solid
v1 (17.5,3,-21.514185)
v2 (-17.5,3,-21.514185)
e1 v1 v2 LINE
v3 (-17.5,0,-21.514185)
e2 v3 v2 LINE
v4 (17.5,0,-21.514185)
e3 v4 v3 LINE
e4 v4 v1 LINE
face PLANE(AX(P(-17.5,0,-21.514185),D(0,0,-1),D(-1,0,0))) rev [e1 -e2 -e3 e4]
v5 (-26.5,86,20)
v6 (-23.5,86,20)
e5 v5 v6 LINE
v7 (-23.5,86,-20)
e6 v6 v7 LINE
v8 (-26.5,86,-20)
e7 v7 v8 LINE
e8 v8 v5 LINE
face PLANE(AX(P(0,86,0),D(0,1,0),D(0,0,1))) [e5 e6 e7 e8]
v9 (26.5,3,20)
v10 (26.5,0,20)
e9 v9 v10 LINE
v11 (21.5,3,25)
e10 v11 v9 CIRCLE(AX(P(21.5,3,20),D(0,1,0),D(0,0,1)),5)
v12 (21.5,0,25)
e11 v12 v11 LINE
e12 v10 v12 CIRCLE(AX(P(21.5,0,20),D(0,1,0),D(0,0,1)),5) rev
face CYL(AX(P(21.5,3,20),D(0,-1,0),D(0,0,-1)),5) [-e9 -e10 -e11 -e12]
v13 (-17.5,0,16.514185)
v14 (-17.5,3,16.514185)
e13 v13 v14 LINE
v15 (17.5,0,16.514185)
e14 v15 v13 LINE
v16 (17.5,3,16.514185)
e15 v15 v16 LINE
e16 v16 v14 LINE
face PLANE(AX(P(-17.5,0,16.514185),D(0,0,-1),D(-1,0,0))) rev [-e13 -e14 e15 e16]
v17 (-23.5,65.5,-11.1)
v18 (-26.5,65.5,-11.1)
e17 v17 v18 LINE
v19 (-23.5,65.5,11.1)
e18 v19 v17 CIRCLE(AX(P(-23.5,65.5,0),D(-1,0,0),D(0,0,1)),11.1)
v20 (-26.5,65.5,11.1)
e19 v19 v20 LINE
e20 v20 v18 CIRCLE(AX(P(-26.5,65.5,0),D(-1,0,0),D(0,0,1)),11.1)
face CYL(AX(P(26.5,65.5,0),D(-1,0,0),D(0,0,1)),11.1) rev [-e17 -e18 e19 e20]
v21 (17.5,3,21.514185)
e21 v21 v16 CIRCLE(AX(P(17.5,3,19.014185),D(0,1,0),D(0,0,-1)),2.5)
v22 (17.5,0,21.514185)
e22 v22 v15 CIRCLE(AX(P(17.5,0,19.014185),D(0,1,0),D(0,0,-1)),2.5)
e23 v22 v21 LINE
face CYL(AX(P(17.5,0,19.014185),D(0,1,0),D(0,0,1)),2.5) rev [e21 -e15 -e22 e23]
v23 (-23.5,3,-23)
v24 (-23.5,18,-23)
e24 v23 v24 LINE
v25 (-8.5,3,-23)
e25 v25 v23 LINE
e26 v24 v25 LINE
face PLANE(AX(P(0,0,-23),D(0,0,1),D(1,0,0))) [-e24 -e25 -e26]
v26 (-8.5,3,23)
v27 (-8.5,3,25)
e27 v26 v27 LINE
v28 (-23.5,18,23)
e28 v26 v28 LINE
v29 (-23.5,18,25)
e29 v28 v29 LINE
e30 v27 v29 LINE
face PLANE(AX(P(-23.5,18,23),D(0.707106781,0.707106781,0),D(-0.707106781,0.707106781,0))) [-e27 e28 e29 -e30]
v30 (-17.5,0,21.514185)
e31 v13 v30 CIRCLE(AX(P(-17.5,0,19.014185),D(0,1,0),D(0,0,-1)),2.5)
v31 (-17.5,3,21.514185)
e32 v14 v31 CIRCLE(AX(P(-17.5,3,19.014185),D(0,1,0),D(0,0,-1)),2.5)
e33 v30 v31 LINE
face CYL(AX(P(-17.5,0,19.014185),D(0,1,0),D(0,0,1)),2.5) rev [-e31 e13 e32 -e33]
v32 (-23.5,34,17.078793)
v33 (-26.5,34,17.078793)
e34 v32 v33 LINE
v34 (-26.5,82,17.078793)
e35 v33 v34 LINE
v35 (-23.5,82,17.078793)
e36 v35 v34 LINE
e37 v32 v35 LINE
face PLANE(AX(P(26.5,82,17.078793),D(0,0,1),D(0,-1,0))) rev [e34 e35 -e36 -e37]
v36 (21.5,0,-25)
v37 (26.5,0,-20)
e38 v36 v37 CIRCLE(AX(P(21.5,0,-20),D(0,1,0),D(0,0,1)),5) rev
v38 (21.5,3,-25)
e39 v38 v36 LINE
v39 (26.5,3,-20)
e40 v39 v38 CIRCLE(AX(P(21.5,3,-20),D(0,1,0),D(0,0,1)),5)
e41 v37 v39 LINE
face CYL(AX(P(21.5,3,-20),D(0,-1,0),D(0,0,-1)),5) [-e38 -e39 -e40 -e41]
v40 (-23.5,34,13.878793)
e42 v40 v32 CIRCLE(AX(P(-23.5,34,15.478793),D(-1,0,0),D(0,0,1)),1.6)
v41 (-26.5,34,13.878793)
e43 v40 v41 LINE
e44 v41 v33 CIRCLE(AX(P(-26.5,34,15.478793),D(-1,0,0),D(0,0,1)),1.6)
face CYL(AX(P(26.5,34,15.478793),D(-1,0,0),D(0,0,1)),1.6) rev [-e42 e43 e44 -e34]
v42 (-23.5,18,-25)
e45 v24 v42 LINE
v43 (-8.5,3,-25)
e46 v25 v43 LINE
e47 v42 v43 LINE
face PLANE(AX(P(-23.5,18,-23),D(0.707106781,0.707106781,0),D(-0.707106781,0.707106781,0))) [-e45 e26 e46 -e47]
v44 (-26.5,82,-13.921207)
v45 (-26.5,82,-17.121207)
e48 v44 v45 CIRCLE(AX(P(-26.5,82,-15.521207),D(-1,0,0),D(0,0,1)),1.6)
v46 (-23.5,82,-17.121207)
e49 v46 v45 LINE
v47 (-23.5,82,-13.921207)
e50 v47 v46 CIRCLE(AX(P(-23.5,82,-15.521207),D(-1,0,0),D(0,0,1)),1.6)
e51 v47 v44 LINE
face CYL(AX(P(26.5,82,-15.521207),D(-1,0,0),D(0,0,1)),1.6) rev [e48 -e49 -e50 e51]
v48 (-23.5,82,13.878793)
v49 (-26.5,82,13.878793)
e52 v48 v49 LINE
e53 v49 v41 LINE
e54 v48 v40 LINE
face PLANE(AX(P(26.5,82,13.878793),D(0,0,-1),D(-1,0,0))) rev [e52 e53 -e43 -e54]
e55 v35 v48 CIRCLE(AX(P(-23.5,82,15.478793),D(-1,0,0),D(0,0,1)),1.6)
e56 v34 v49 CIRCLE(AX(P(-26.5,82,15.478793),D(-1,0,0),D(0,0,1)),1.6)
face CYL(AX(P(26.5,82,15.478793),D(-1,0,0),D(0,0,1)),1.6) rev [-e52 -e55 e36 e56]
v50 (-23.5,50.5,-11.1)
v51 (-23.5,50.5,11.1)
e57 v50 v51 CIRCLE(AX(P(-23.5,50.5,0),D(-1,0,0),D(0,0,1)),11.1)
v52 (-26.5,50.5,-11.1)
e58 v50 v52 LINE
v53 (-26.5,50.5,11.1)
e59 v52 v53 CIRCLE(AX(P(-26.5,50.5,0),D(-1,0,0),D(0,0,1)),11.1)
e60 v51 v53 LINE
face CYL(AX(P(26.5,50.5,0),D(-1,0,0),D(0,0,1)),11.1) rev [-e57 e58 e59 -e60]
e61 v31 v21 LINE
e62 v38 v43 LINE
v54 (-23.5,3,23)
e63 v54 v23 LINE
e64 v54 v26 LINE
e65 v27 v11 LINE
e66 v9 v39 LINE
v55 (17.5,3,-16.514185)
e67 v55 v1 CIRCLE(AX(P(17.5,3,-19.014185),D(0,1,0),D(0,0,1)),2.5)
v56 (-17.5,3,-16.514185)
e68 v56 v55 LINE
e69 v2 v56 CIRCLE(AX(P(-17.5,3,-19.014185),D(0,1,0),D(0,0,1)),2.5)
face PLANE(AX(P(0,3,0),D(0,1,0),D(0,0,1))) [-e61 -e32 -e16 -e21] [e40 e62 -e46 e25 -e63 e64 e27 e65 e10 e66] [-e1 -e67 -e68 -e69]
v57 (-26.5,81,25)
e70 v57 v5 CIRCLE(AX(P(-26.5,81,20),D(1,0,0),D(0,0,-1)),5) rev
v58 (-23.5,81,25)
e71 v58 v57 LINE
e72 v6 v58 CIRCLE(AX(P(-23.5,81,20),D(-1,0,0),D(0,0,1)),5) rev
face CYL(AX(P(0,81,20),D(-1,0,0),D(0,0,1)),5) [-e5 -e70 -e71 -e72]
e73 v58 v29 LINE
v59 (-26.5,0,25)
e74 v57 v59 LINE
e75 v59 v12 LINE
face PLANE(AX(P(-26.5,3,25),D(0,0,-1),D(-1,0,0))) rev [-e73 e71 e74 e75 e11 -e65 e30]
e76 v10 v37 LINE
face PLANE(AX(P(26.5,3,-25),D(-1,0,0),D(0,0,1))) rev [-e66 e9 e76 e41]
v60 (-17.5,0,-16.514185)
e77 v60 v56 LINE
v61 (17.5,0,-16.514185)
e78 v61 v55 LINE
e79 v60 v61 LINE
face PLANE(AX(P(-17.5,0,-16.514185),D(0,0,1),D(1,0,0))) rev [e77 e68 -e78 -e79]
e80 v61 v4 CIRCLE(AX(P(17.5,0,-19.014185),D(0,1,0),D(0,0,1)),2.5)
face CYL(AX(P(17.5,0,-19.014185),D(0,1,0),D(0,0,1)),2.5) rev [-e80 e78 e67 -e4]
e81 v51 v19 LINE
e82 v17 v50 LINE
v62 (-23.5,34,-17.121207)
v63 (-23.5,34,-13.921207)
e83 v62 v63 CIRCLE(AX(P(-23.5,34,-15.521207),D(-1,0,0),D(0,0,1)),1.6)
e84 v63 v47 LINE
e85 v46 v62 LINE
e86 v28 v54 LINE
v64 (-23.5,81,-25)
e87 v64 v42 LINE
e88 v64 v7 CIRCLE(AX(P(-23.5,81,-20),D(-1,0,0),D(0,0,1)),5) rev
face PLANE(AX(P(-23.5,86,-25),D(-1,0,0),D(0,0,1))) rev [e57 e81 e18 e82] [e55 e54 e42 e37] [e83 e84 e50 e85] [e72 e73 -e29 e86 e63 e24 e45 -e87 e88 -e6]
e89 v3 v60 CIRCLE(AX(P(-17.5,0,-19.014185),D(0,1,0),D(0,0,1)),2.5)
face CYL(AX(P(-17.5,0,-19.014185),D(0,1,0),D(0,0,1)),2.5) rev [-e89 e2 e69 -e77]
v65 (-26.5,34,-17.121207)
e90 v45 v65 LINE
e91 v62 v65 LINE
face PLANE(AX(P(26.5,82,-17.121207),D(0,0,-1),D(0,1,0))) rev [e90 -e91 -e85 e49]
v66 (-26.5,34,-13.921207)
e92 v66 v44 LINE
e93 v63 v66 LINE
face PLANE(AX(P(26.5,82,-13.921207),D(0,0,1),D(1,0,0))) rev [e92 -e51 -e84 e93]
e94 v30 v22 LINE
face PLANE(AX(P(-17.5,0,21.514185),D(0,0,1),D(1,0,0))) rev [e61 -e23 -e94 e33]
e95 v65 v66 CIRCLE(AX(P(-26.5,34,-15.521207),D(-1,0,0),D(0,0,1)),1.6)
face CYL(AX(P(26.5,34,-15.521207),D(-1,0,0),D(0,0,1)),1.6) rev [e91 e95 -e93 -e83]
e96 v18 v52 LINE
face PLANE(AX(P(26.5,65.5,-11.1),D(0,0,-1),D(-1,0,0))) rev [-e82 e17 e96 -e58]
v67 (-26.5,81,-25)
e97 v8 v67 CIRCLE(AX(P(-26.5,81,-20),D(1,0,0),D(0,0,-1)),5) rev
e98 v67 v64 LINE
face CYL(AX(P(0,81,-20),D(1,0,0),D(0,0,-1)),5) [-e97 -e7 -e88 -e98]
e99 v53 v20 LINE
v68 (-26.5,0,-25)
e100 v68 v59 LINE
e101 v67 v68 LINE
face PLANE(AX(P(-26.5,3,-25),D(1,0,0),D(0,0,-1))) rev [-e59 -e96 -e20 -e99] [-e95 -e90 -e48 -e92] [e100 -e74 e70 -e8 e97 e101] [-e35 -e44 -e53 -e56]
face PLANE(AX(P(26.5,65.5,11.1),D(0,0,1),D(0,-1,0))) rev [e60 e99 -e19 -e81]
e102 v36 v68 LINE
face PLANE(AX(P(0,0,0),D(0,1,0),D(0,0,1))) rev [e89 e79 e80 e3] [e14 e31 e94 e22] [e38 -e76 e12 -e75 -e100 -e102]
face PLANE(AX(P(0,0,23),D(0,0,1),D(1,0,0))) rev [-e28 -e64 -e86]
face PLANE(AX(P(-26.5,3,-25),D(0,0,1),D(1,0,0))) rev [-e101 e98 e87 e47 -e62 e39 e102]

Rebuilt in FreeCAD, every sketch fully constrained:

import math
import FreeCAD as App
import Part
import Sketcher

V = App.Vector


def edges_at(feature, points):
    """Names of the edges that pass closest to the given points."""
    edges = feature.Shape.Edges
    near = lambda p: min(range(len(edges)), key=lambda i: edges[i].distToShape(Part.Vertex(*p))[0])
    return sorted({f"Edge{near(p) + 1}" for p in points})

doc = App.newDocument("Part")
params = doc.addObject("Spreadsheet::Sheet", "Params")
for row, (alias, value) in enumerate([
    ("sketch1_width", "53 mm"),
    ("sketch1_height", "50 mm"),
    ("pad1_length", "3 mm"),
    ("sketch2_radius", "2.5 mm"),
    ("sketch2_width", "35 mm"),
    ("sketch3_width", "3 mm"),
    ("sketch3_height", "50 mm"),
    ("pad2_length", "83 mm"),
    ("sketch4_radius", "1.6 mm"),
    ("sketch4_radius2", "11.1 mm"),
    ("sketch4_width", "48 mm"),
    ("sketch4_width2", "15 mm"),
    ("sketch5_width", "15 mm"),
    ("pad3_length", "2 mm"),
    ("sketch6_width", "15 mm"),
    ("pad4_length", "2 mm"),
    ("fillet_radius", "5 mm"),
], start=1):
    params.set(f"A{row}", alias)
    params.set(f"B{row}", "=" + value)
    params.setAlias(f"B{row}", alias)

body = doc.addObject("PartDesign::Body", "Body")

# Sketch on XZ plane
sketch1 = body.newObject("Sketcher::SketchObject", "Sketch")
sketch1.AttachmentSupport = (doc.getObject("XZ_Plane"), [""])
sketch1.MapMode = "FlatFace"
sketch1.addGeometry([
    Part.LineSegment(V(-26.5, -25, 0), V(-26.5, 25, 0)),
    Part.LineSegment(V(-26.5, 25, 0), V(26.5, 25, 0)),
    Part.LineSegment(V(26.5, 25, 0), V(26.5, -25, 0)),
    Part.LineSegment(V(26.5, -25, 0), V(-26.5, -25, 0)),
], False)
sketch1.addConstraint([
    Sketcher.Constraint("Coincident", 0, 2, 1, 1),
    Sketcher.Constraint("Coincident", 1, 2, 2, 1),
    Sketcher.Constraint("Coincident", 2, 2, 3, 1),
    Sketcher.Constraint("Coincident", 3, 2, 0, 1),
    Sketcher.Constraint("Vertical", 0),
    Sketcher.Constraint("Horizontal", 1),
    Sketcher.Constraint("Vertical", 2),
    Sketcher.Constraint("Horizontal", 3),
    Sketcher.Constraint("Symmetric", 0, 2, 2, 2, -1, 1),
    Sketcher.Constraint("DistanceX", 1, 1, 1, 2, 53.0),
    Sketcher.Constraint("DistanceY", 0, 1, 0, 2, 50.0),
])
sketch1.setExpression("Constraints[9]", "Params.sketch1_width")
sketch1.setExpression("Constraints[10]", "Params.sketch1_height")
pad1 = body.newObject("PartDesign::Pad", "Pad")
pad1.Profile = sketch1
pad1.setExpression("Length", "Params.pad1_length")
pad1.Reversed = True

# Sketch on XZ plane
sketch2 = body.newObject("Sketcher::SketchObject", "Sketch001")
sketch2.AttachmentSupport = (doc.getObject("XZ_Plane"), [""])
sketch2.MapMode = "FlatFace"
sketch2.AttachmentOffset = App.Placement(V(0, 0, -3), App.Rotation())
sketch2.addGeometry([
    Part.LineSegment(V(17.5, -21.514185, 0), V(-17.5, -21.514185, 0)),  # 0
    Part.ArcOfCircle(Part.Circle(V(-17.5, -19.014185, 0), V(0, 0, 1), 2.5), math.radians(90), math.radians(270)),  # 1
    Part.LineSegment(V(-17.5, -16.514185, 0), V(17.5, -16.514185, 0)),  # 2
    Part.ArcOfCircle(Part.Circle(V(17.5, -19.014185, 0), V(0, 0, 1), 2.5), math.radians(-90), math.radians(90)),  # 3
    Part.LineSegment(V(-17.5, 21.514185, 0), V(17.5, 21.514185, 0)),  # 4
    Part.ArcOfCircle(Part.Circle(V(17.5, 19.014185, 0), V(0, 0, 1), 2.5), math.radians(-90), math.radians(90)),  # 5
    Part.LineSegment(V(17.5, 16.514185, 0), V(-17.5, 16.514185, 0)),  # 6
    Part.ArcOfCircle(Part.Circle(V(-17.5, 19.014185, 0), V(0, 0, 1), 2.5), math.radians(90), math.radians(270)),  # 7
], False)
sketch2.addConstraint([
    Sketcher.Constraint("Tangent", 0, 2, 1, 2),
    Sketcher.Constraint("Tangent", 1, 1, 2, 1),
    Sketcher.Constraint("Tangent", 2, 2, 3, 2),
    Sketcher.Constraint("Tangent", 3, 1, 0, 1),
    Sketcher.Constraint("Tangent", 4, 2, 5, 2),
    Sketcher.Constraint("Tangent", 5, 1, 6, 1),
    Sketcher.Constraint("Tangent", 6, 2, 7, 2),
    Sketcher.Constraint("Tangent", 7, 1, 4, 1),
    Sketcher.Constraint("Horizontal", 0),
    Sketcher.Constraint("Horizontal", 2),
    Sketcher.Constraint("Horizontal", 4),
    Sketcher.Constraint("Horizontal", 6),
    Sketcher.Constraint("Equal", 3, 5),
    Sketcher.Constraint("Symmetric", 1, 3, 5, 3, -1, 1),
    Sketcher.Constraint("Vertical", 3, 3, 5, 3),
    Sketcher.Constraint("Vertical", 1, 3, 7, 3),
    Sketcher.Constraint("Radius", 1, 2.5),
    Sketcher.Constraint("DistanceX", 0, 2, 0, 1, 35.0),
    Sketcher.Constraint("DistanceY", 3, 3, 5, 3, 38.02837),
])
sketch2.setExpression("Constraints[16]", "Params.sketch2_radius")
sketch2.setExpression("Constraints[17]", "Params.sketch2_width")
pocket1 = body.newObject("PartDesign::Pocket", "Pocket")
pocket1.Profile = sketch2
pocket1.Type = "ThroughAll"
pocket1.Reversed = True

# Sketch on XZ plane
sketch3 = body.newObject("Sketcher::SketchObject", "Sketch002")
sketch3.AttachmentSupport = (doc.getObject("XZ_Plane"), [""])
sketch3.MapMode = "FlatFace"
sketch3.AttachmentOffset = App.Placement(V(0, 0, -3), App.Rotation())
sketch3.addGeometry([
    Part.LineSegment(V(-26.5, -25, 0), V(-26.5, 25, 0)),
    Part.LineSegment(V(-26.5, 25, 0), V(-23.5, 25, 0)),
    Part.LineSegment(V(-23.5, 25, 0), V(-23.5, -25, 0)),
    Part.LineSegment(V(-23.5, -25, 0), V(-26.5, -25, 0)),
], False)
sketch3.addConstraint([
    Sketcher.Constraint("Coincident", 0, 2, 1, 1),
    Sketcher.Constraint("Coincident", 1, 2, 2, 1),
    Sketcher.Constraint("Coincident", 2, 2, 3, 1),
    Sketcher.Constraint("Coincident", 3, 2, 0, 1),
    Sketcher.Constraint("Vertical", 0),
    Sketcher.Constraint("Horizontal", 1),
    Sketcher.Constraint("Vertical", 2),
    Sketcher.Constraint("Horizontal", 3),
    Sketcher.Constraint("DistanceX", 1, 1, 1, 2, 3.0),
    Sketcher.Constraint("DistanceY", 0, 1, 0, 2, 50.0),
    Sketcher.Constraint("DistanceY", -1, 1, 0, 2, 25.0),
    Sketcher.Constraint("DistanceX", 0, 2, -1, 1, 26.5),
])
sketch3.setExpression("Constraints[8]", "Params.sketch3_width")
sketch3.setExpression("Constraints[9]", "Params.sketch3_height")
pad2 = body.newObject("PartDesign::Pad", "Pad001")
pad2.Profile = sketch3
pad2.setExpression("Length", "Params.pad2_length")
pad2.Reversed = True

# Sketch on YZ plane
sketch4 = body.newObject("Sketcher::SketchObject", "Sketch003")
sketch4.AttachmentSupport = (doc.getObject("YZ_Plane"), [""])
sketch4.MapMode = "FlatFace"
sketch4.AttachmentOffset = App.Placement(V(0, 0, -26.5), App.Rotation())
sketch4.addGeometry([
    Part.LineSegment(V(34, -13.921207, 0), V(82, -13.921207, 0)),  # 0
    Part.ArcOfCircle(Part.Circle(V(82, -15.521207, 0), V(0, 0, 1), 1.6), math.radians(-90), math.radians(90)),  # 1
    Part.LineSegment(V(82, -17.121207, 0), V(34, -17.121207, 0)),  # 2
    Part.ArcOfCircle(Part.Circle(V(34, -15.521207, 0), V(0, 0, 1), 1.6), math.radians(90), math.radians(270)),  # 3
    Part.LineSegment(V(50.5, 11.1, 0), V(65.5, 11.1, 0)),  # 4
    Part.ArcOfCircle(Part.Circle(V(65.5, 0, 0), V(0, 0, 1), 11.1), math.radians(-90), math.radians(90)),  # 5
    Part.LineSegment(V(65.5, -11.1, 0), V(50.5, -11.1, 0)),  # 6
    Part.ArcOfCircle(Part.Circle(V(50.5, 0, 0), V(0, 0, 1), 11.1), math.radians(90), math.radians(270)),  # 7
    Part.LineSegment(V(34, 17.078793, 0), V(82, 17.078793, 0)),  # 8
    Part.ArcOfCircle(Part.Circle(V(82, 15.478793, 0), V(0, 0, 1), 1.6), math.radians(-90), math.radians(90)),  # 9
    Part.LineSegment(V(82, 13.878793, 0), V(34, 13.878793, 0)),  # 10
    Part.ArcOfCircle(Part.Circle(V(34, 15.478793, 0), V(0, 0, 1), 1.6), math.radians(90), math.radians(270)),  # 11
], False)
sketch4.addConstraint([
    Sketcher.Constraint("Tangent", 0, 2, 1, 2),
    Sketcher.Constraint("Tangent", 1, 1, 2, 1),
    Sketcher.Constraint("Tangent", 2, 2, 3, 2),
    Sketcher.Constraint("Tangent", 3, 1, 0, 1),
    Sketcher.Constraint("Tangent", 4, 2, 5, 2),
    Sketcher.Constraint("Tangent", 5, 1, 6, 1),
    Sketcher.Constraint("Tangent", 6, 2, 7, 2),
    Sketcher.Constraint("Tangent", 7, 1, 4, 1),
    Sketcher.Constraint("Tangent", 8, 2, 9, 2),
    Sketcher.Constraint("Tangent", 9, 1, 10, 1),
    Sketcher.Constraint("Tangent", 10, 2, 11, 2),
    Sketcher.Constraint("Tangent", 11, 1, 8, 1),
    Sketcher.Constraint("Horizontal", 0),
    Sketcher.Constraint("Horizontal", 2),
    Sketcher.Constraint("Horizontal", 4),
    Sketcher.Constraint("Horizontal", 6),
    Sketcher.Constraint("Horizontal", 8),
    Sketcher.Constraint("Horizontal", 10),
    Sketcher.Constraint("Equal", 3, 9),
    Sketcher.Constraint("PointOnObject", 5, 3, -1),
    Sketcher.Constraint("Vertical", 1, 3, 9, 3),
    Sketcher.Constraint("Vertical", 3, 3, 11, 3),
    Sketcher.Constraint("Radius", 1, 1.6),
    Sketcher.Constraint("Radius", 5, 11.1),
    Sketcher.Constraint("DistanceX", 0, 1, 0, 2, 48.0),
    Sketcher.Constraint("DistanceX", 4, 1, 4, 2, 15.0),
    Sketcher.Constraint("DistanceX", -1, 1, 1, 3, 82.0),
    Sketcher.Constraint("DistanceY", 1, 3, 9, 3, 31.0),
    Sketcher.Constraint("DistanceX", -1, 1, 5, 3, 65.5),
    Sketcher.Constraint("DistanceY", 1, 3, -1, 1, 15.521207),
])
sketch4.setExpression("Constraints[22]", "Params.sketch4_radius")
sketch4.setExpression("Constraints[23]", "Params.sketch4_radius2")
sketch4.setExpression("Constraints[24]", "Params.sketch4_width")
sketch4.setExpression("Constraints[25]", "Params.sketch4_width2")
pocket2 = body.newObject("PartDesign::Pocket", "Pocket001")
pocket2.Profile = sketch4
pocket2.Type = "ThroughAll"
pocket2.Reversed = True

# Sketch on XY plane
sketch5 = body.newObject("Sketcher::SketchObject", "Sketch004")
sketch5.AttachmentSupport = (doc.getObject("XY_Plane"), [""])
sketch5.MapMode = "FlatFace"
sketch5.AttachmentOffset = App.Placement(V(0, 0, 25), App.Rotation())
sketch5.addGeometry([
    Part.LineSegment(V(-8.5, 3, 0), V(-23.5, 18, 0)),
    Part.LineSegment(V(-23.5, 18, 0), V(-23.5, 3, 0)),
    Part.LineSegment(V(-23.5, 3, 0), V(-8.5, 3, 0)),
], False)
sketch5.addConstraint([
    Sketcher.Constraint("Coincident", 0, 2, 1, 1),
    Sketcher.Constraint("Coincident", 1, 2, 2, 1),
    Sketcher.Constraint("Coincident", 2, 2, 0, 1),
    Sketcher.Constraint("Vertical", 1),
    Sketcher.Constraint("Horizontal", 2),
    Sketcher.Constraint("Equal", 2, 1),
    Sketcher.Constraint("DistanceX", 2, 1, 2, 2, 15.0),
    Sketcher.Constraint("DistanceY", -1, 1, 0, 2, 18.0),
    Sketcher.Constraint("DistanceX", 0, 2, -1, 1, 23.5),
])
sketch5.setExpression("Constraints[6]", "Params.sketch5_width")
pad3 = body.newObject("PartDesign::Pad", "Pad002")
pad3.Profile = sketch5
pad3.setExpression("Length", "Params.pad3_length")
pad3.Reversed = True

# Sketch on XY plane
sketch6 = body.newObject("Sketcher::SketchObject", "Sketch005")
sketch6.AttachmentSupport = (doc.getObject("XY_Plane"), [""])
sketch6.MapMode = "FlatFace"
sketch6.AttachmentOffset = App.Placement(V(0, 0, -25), App.Rotation())
sketch6.addGeometry([
    Part.LineSegment(V(-23.5, 18, 0), V(-8.5, 3, 0)),
    Part.LineSegment(V(-8.5, 3, 0), V(-23.5, 3, 0)),
    Part.LineSegment(V(-23.5, 3, 0), V(-23.5, 18, 0)),
], False)
sketch6.addConstraint([
    Sketcher.Constraint("Coincident", 0, 2, 1, 1),
    Sketcher.Constraint("Coincident", 1, 2, 2, 1),
    Sketcher.Constraint("Coincident", 2, 2, 0, 1),
    Sketcher.Constraint("Horizontal", 1),
    Sketcher.Constraint("Vertical", 2),
    Sketcher.Constraint("Equal", 1, 2),
    Sketcher.Constraint("DistanceX", 1, 2, 1, 1, 15.0),
    Sketcher.Constraint("DistanceY", -1, 1, 0, 2, 3.0),
    Sketcher.Constraint("DistanceX", 0, 2, -1, 1, 8.5),
])
sketch6.setExpression("Constraints[6]", "Params.sketch6_width")
pad4 = body.newObject("PartDesign::Pad", "Pad003")
pad4.Profile = sketch6
pad4.setExpression("Length", "Params.pad4_length")
doc.recompute()

fillet = body.newObject("PartDesign::Fillet", "Fillet")
fillet.Base = (pad4, edges_at(pad4, [
    (-25, 86, 25),
    (-25, 86, -25),
    (26.5, 1.5, 25),
    (26.5, 1.5, -25),
]))
fillet.setExpression("Radius", "Params.fillet_radius")

doc.recompute()
